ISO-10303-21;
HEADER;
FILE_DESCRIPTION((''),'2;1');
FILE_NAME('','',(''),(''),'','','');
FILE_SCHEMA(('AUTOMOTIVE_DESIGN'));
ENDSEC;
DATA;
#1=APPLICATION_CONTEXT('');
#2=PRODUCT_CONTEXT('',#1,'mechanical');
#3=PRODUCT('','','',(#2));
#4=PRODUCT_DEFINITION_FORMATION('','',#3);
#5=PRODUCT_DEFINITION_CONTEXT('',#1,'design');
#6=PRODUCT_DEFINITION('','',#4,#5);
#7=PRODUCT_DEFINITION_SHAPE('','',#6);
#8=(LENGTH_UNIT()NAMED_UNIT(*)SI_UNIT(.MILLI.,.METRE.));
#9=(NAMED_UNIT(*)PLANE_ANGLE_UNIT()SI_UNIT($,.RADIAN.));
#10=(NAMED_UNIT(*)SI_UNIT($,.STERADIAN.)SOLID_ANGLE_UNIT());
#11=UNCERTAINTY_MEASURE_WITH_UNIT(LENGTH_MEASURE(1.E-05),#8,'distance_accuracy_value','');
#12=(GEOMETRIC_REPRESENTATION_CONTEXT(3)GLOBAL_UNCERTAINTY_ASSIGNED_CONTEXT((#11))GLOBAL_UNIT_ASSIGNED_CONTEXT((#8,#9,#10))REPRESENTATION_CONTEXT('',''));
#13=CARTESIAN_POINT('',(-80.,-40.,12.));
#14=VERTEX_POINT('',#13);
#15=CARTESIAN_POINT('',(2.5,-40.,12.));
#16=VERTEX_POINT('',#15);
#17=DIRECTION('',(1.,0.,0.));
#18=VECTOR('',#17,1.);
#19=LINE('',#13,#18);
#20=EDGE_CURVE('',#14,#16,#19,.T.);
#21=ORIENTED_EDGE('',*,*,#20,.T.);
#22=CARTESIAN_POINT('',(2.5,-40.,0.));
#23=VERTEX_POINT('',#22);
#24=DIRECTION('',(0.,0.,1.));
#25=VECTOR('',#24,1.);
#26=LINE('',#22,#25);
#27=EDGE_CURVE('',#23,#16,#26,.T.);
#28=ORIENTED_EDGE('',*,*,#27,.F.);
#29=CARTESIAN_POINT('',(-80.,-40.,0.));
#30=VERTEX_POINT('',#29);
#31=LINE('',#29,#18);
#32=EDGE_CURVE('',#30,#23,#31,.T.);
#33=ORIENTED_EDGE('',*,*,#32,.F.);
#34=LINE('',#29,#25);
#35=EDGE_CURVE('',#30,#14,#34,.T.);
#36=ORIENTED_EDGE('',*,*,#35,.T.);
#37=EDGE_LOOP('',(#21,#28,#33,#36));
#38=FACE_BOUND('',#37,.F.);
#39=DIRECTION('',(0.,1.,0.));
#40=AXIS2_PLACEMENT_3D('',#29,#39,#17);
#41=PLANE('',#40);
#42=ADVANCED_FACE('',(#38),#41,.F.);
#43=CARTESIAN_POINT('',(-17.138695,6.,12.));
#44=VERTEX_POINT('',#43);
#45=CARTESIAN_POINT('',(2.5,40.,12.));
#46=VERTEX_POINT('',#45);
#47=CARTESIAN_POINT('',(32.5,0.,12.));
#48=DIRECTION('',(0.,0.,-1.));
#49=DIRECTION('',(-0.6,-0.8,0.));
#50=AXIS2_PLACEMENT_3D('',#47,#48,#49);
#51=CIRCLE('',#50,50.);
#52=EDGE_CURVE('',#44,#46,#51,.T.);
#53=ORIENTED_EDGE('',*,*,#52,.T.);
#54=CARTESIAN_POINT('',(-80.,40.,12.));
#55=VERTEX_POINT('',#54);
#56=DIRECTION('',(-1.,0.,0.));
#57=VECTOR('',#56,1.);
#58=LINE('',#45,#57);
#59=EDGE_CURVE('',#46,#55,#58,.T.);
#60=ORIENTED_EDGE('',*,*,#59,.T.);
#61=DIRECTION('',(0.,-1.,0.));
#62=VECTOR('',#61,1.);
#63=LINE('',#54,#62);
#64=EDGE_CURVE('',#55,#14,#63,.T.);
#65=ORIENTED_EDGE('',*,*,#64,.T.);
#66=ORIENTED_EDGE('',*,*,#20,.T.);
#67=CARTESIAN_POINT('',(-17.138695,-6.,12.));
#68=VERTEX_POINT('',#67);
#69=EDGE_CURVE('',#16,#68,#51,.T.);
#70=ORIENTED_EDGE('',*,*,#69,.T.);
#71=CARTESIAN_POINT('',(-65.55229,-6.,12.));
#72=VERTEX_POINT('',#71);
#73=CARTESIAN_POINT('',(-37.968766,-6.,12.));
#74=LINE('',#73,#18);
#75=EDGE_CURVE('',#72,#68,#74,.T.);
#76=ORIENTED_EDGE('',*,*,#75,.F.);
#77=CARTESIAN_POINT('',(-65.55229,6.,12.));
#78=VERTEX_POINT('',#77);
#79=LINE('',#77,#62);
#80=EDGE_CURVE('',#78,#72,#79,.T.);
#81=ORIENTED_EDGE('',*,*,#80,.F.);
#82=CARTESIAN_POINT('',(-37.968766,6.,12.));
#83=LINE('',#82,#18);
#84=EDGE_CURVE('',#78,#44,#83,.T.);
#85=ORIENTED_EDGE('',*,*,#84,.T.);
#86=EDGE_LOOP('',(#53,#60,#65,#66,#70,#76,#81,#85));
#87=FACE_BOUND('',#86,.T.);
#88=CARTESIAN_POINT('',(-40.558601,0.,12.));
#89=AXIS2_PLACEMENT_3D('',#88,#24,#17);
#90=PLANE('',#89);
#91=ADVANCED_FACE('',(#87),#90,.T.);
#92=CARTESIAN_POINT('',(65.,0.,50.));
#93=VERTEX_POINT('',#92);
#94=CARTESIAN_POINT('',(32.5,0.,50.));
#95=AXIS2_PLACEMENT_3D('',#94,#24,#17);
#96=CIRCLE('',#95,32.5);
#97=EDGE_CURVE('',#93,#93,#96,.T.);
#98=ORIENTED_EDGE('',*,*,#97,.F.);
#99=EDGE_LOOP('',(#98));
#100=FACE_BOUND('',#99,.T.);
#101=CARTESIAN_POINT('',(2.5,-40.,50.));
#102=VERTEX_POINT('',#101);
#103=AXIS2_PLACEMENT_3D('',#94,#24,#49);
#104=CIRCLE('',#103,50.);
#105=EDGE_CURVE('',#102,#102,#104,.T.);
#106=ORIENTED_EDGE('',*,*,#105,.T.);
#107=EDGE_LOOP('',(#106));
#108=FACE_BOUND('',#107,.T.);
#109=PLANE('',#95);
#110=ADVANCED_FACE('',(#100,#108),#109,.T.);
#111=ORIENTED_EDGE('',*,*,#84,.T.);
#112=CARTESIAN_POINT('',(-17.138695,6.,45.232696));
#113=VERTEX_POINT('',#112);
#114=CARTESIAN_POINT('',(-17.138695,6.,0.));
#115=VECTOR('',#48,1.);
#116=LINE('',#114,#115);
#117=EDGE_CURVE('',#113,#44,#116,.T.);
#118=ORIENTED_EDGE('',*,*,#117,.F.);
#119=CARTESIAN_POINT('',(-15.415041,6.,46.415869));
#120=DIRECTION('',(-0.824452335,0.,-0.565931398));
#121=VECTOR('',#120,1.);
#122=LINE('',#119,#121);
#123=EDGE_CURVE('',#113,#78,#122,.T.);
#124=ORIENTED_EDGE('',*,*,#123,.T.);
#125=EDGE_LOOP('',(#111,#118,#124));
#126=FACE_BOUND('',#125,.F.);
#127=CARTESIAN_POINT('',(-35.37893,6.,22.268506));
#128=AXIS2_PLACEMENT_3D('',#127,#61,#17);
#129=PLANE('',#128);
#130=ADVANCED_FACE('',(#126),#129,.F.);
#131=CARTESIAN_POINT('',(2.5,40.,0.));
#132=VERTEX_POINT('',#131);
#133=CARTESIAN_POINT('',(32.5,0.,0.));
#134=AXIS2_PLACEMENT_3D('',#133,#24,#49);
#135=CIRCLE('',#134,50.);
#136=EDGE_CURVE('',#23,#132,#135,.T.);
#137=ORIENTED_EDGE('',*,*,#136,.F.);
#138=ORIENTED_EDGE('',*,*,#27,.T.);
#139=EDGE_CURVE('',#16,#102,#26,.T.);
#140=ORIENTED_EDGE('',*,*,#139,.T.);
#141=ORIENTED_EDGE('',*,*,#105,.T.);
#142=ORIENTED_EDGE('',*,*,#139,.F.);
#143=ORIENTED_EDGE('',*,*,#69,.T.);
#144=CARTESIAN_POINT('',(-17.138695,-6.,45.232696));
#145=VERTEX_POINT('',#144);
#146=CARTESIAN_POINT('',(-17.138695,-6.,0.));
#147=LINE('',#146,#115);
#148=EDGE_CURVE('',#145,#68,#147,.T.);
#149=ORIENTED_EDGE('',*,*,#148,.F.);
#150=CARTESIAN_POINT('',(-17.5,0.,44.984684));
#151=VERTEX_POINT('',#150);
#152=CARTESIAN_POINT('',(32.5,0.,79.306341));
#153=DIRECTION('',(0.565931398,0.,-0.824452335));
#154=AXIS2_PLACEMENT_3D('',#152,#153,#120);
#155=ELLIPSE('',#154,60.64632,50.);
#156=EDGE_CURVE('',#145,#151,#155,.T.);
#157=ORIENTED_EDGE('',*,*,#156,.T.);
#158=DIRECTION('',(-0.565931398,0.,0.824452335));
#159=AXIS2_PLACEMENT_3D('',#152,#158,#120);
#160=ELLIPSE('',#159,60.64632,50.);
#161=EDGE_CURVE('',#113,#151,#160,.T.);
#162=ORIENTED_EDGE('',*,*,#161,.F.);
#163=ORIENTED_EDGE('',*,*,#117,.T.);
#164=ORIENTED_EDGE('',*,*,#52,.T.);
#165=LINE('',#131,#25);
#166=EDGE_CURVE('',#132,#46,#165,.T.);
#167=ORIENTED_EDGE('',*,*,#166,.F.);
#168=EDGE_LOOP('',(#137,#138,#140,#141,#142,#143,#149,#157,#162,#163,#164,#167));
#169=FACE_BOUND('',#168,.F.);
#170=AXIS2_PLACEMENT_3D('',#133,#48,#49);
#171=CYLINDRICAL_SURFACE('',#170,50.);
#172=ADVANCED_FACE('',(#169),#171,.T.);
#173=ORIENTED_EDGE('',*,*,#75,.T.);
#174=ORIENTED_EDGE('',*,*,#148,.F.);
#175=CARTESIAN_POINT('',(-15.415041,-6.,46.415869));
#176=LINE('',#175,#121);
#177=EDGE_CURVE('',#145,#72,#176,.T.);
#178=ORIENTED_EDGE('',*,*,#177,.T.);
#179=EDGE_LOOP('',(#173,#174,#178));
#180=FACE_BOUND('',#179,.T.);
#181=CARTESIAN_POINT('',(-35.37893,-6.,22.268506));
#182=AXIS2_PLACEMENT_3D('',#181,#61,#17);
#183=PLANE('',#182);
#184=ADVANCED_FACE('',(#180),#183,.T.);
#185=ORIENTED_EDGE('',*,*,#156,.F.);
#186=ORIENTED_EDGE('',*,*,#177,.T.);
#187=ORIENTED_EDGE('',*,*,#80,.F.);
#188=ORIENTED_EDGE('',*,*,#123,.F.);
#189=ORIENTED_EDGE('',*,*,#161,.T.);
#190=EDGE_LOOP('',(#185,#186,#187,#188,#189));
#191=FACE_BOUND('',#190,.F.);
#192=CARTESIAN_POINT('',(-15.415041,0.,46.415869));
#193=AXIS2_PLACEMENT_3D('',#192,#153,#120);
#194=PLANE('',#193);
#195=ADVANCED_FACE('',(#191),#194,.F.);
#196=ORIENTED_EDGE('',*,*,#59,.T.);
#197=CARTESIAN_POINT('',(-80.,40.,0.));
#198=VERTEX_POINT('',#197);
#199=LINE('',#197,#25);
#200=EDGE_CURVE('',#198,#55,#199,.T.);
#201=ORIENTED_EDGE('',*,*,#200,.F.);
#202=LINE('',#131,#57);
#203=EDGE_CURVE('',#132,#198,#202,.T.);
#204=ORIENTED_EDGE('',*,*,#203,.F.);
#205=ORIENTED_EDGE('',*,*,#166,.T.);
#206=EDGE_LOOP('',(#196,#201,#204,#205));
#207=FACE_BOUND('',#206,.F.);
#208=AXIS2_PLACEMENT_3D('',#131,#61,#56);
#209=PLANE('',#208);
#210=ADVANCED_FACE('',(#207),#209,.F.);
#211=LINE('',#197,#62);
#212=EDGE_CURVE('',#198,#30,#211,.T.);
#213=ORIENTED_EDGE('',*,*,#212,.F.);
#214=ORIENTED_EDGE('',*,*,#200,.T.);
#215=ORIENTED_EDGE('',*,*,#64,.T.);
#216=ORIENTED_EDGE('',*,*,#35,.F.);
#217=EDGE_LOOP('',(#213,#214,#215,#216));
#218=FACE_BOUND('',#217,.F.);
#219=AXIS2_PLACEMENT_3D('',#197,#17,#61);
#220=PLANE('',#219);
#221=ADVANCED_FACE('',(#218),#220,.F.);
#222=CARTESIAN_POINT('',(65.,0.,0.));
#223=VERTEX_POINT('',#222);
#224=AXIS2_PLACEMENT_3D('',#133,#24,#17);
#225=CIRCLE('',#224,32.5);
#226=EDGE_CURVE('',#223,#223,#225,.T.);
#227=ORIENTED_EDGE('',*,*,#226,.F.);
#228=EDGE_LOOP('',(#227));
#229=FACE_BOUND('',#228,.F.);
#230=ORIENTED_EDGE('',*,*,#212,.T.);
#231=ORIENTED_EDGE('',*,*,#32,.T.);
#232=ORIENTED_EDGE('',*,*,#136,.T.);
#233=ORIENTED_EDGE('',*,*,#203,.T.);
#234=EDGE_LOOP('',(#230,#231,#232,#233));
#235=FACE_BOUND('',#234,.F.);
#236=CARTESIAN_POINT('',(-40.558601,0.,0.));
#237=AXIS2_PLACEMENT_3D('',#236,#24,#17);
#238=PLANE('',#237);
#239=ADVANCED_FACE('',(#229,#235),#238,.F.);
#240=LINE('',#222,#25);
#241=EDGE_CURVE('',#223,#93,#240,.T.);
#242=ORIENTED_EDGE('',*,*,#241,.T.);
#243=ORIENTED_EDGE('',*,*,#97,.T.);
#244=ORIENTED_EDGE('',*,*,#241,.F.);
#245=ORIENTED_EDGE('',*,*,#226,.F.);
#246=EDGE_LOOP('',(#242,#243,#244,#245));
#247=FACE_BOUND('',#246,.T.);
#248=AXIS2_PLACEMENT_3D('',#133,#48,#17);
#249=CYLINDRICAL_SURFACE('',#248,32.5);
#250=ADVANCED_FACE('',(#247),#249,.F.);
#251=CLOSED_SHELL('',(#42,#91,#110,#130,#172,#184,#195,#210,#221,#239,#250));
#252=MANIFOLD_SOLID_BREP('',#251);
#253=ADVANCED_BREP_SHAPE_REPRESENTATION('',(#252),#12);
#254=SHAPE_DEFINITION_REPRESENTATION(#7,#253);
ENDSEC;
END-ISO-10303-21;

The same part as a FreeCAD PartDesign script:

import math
import FreeCAD as App
import Part
import Sketcher
from FreeCAD import Vector
Q = App.Units.Quantity

doc = App.newDocument("Part")
body = doc.addObject("PartDesign::Body", "Body")

# Sketch on XY plane
sketch1 = body.newObject("Sketcher::SketchObject", "Sketch")
sketch1.AttachmentSupport = (doc.getObject("XY_Plane"), [""])
sketch1.MapMode = "FlatFace"
sketch1.addGeometry([
    Part.Circle(Vector(32.5, 0, 0), Vector(0, 0, 1), 50),
    Part.Circle(Vector(32.5, 0, 0), Vector(0, 0, 1), 32.5),
], False)
sketch1.addConstraint([
    Sketcher.Constraint("Coincident", 1, 3, 0, 3),
    Sketcher.Constraint("PointOnObject", 0, 3, -1),
    Sketcher.Constraint("Diameter", 0, Q("100 mm")),
    Sketcher.Constraint("Diameter", 1, Q("65 mm")),
    Sketcher.Constraint("DistanceX", -1, 1, 0, 3, Q("32.5 mm")),
])
pad1 = body.newObject("PartDesign::Pad", "Pad")
pad1.Profile = sketch1
pad1.Length = 50

# Sketch on XY plane
sketch2 = body.newObject("Sketcher::SketchObject", "Sketch001")
sketch2.AttachmentSupport = (doc.getObject("XY_Plane"), [""])
sketch2.MapMode = "FlatFace"
sketch2.addGeometry([
    Part.LineSegment(Vector(2.5, 40, 0), Vector(-80, 40, 0)),  # 0
    Part.LineSegment(Vector(-80, 40, 0), Vector(-80, -40, 0)),  # 1
    Part.LineSegment(Vector(-80, -40, 0), Vector(2.5, -40, 0)),  # 2
    Part.ArcOfCircle(Part.Circle(Vector(32.5, 0, 0), Vector(0, 0, 1), 50), math.radians(-126.869898), math.radians(126.869898)),  # 3
    Part.Circle(Vector(32.5, 0, 0), Vector(0, 0, 1), 32.5),  # 4
], False)
sketch2.addConstraint([
    Sketcher.Constraint("Coincident", 0, 2, 1, 1),
    Sketcher.Constraint("Coincident", 1, 2, 2, 1),
    Sketcher.Constraint("Coincident", 2, 2, 3, 1),
    Sketcher.Constraint("Coincident", 3, 2, 0, 1),
    Sketcher.Constraint("Horizontal", 0),
    Sketcher.Constraint("Vertical", 1),
    Sketcher.Constraint("Horizontal", 2),
    Sketcher.Constraint("Coincident", 4, 3, 3, 3),
    Sketcher.Constraint("Symmetric", 2, 2, 3, 2, -1),
    Sketcher.Constraint("Diameter", 4, Q("65 mm")),
    Sketcher.Constraint("Radius", 3, Q("50 mm")),
    Sketcher.Constraint("DistanceY", 1, 2, 1, 1, Q("80 mm")),
    Sketcher.Constraint("DistanceX", 0, 2, 0, 1, Q("82.5 mm")),
    Sketcher.Constraint("DistanceX", 0, 2, -1, 1, Q("80 mm")),
])
pad2 = body.newObject("PartDesign::Pad", "Pad001")
pad2.Profile = sketch2
pad2.Length = 12

# Sketch on XZ plane
sketch3 = body.newObject("Sketcher::SketchObject", "Sketch002")
sketch3.AttachmentSupport = (doc.getObject("XZ_Plane"), [""])
sketch3.MapMode = "FlatFace"
sketch3.addGeometry([
    Part.LineSegment(Vector(-15.415041, 46.415869, 0), Vector(-67.728117, 10.50644, 0)),
    Part.LineSegment(Vector(-67.728117, 10.50644, 0), Vector(-15.415041, 10.50644, 0)),
    Part.LineSegment(Vector(-15.415041, 10.50644, 0), Vector(-15.415041, 46.415869, 0)),
], False)
sketch3.addConstraint([
    Sketcher.Constraint("Coincident", 0, 2, 1, 1),
    Sketcher.Constraint("Coincident", 1, 2, 2, 1),
    Sketcher.Constraint("Coincident", 2, 2, 0, 1),
    Sketcher.Constraint("Horizontal", 1),
    Sketcher.Constraint("Vertical", 2),
    Sketcher.Constraint("DistanceY", 2, 1, 2, 2, Q("35.909429 mm")),
    Sketcher.Constraint("Distance", 0, Q("63.451911 mm")),
    Sketcher.Constraint("DistanceY", -1, 1, 0, 2, Q("10.50644 mm")),
    Sketcher.Constraint("DistanceX", 1, 2, -1, 1, Q("15.415041 mm")),
])
pad3 = body.newObject("PartDesign::Pad", "Pad002")
pad3.Profile = sketch3
pad3.Type = "TwoLengths"
pad3.Length = 6
pad3.Length2 = 6
pad3.Reversed = True

doc.recompute()
